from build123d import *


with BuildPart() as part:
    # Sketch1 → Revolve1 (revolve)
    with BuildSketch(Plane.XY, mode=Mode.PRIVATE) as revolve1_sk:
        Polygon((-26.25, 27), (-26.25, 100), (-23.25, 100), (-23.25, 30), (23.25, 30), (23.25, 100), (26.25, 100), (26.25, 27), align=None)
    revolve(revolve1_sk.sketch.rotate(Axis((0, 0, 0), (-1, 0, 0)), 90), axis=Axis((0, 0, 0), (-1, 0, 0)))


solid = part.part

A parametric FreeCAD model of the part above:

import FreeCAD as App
import Part
import Sketcher

V = App.Vector

doc = App.newDocument("Part")
params = doc.addObject("Spreadsheet::Sheet", "Params")
for row, (alias, value) in enumerate([
    ("sketch1_width", "3 mm"),
    ("sketch1_height", "73 mm"),
    ("sketch1_height2", "70 mm"),
    ("sketch1_width2", "52.5 mm"),
    ("revolution_angle", "360 deg"),
], start=1):
    params.set(f"A{row}", alias)
    params.set(f"B{row}", "=" + value)
    params.setAlias(f"B{row}", alias)

body = doc.addObject("PartDesign::Body", "Body")

# Sketch on XY plane
sketch1 = body.newObject("Sketcher::SketchObject", "Sketch")
sketch1.AttachmentSupport = (doc.getObject("XY_Plane"), [""])
sketch1.MapMode = "FlatFace"
sketch1.addGeometry([
    Part.LineSegment(V(-26.2, 100, 0), V(-26.2, 27, 0)),  # 0
    Part.LineSegment(V(-26.2, 27, 0), V(26.2, 27, 0)),  # 1
    Part.LineSegment(V(26.2, 27, 0), V(26.2, 100, 0)),  # 2
    Part.LineSegment(V(26.2, 100, 0), V(23.2, 100, 0)),  # 3
    Part.LineSegment(V(23.2, 100, 0), V(23.2, 30, 0)),  # 4
    Part.LineSegment(V(23.2, 30, 0), V(-23.2, 30, 0)),  # 5
    Part.LineSegment(V(-23.2, 30, 0), V(-23.2, 100, 0)),  # 6
    Part.LineSegment(V(-23.2, 100, 0), V(-26.2, 100, 0)),  # 7
], False)
sketch1.addConstraint([
    Sketcher.Constraint("Coincident", 0, 2, 1, 1),
    Sketcher.Constraint("Coincident", 1, 2, 2, 1),
    Sketcher.Constraint("Coincident", 2, 2, 3, 1),
    Sketcher.Constraint("Coincident", 3, 2, 4, 1),
    Sketcher.Constraint("Coincident", 4, 2, 5, 1),
    Sketcher.Constraint("Coincident", 5, 2, 6, 1),
    Sketcher.Constraint("Coincident", 6, 2, 7, 1),
    Sketcher.Constraint("Coincident", 7, 2, 0, 1),
    Sketcher.Constraint("Vertical", 0),
    Sketcher.Constraint("Horizontal", 1),
    Sketcher.Constraint("Vertical", 2),
    Sketcher.Constraint("Horizontal", 3),
    Sketcher.Constraint("Vertical", 4),
    Sketcher.Constraint("Horizontal", 5),
    Sketcher.Constraint("Vertical", 6),
    Sketcher.Constraint("Horizontal", 7),
    Sketcher.Constraint("Symmetric", 3, 2, 6, 2, -2),
    Sketcher.Constraint("Equal", 3, 7),
    Sketcher.Constraint("DistanceX", 3, 2, 3, 1, 3.0),
    Sketcher.Constraint("DistanceY", 0, 2, 0, 1, 73.0),
    Sketcher.Constraint("DistanceY", 4, 2, 4, 1, 70.0),
    Sketcher.Constraint("DistanceX", 1, 1, 1, 2, 52.5),
    Sketcher.Constraint("DistanceY", -1, 1, 0, 2, 27.0),
])
sketch1.setExpression("Constraints[18]", "Params.sketch1_width")
sketch1.setExpression("Constraints[19]", "Params.sketch1_height")
sketch1.setExpression("Constraints[20]", "Params.sketch1_height2")
sketch1.setExpression("Constraints[21]", "Params.sketch1_width2")
revolution = body.newObject("PartDesign::Revolution", "Revolution")
revolution.Profile = sketch1
revolution.ReferenceAxis = (sketch1, ["H_Axis"])
revolution.setExpression("Angle", "Params.revolution_angle")

doc.recompute()
